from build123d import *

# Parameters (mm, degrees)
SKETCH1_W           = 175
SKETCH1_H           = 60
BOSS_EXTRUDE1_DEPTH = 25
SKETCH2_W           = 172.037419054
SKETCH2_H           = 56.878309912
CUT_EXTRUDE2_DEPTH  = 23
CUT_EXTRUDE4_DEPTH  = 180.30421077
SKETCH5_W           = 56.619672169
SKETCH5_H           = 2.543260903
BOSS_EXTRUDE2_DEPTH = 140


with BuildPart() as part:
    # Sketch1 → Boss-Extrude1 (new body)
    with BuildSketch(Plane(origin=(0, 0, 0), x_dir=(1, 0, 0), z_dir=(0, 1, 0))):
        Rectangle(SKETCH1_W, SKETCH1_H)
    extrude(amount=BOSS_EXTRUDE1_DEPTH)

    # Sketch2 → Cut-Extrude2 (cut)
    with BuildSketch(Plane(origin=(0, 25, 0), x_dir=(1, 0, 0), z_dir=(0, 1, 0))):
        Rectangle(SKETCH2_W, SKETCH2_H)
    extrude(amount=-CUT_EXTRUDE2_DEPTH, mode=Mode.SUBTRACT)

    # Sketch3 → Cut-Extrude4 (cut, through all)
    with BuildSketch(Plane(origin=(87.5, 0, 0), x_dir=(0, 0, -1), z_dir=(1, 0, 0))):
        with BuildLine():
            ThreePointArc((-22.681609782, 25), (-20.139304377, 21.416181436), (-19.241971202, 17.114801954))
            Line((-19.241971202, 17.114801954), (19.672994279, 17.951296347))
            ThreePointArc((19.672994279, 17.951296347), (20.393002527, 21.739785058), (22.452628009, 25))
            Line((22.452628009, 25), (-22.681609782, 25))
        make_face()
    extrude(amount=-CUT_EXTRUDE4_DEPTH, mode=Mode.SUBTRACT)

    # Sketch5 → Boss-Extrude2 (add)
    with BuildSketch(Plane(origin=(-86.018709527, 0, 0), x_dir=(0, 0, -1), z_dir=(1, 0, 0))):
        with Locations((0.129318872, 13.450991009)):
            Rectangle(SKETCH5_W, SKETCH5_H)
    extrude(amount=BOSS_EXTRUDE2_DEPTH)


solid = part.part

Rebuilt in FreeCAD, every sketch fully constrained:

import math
import FreeCAD as App
import Part
import Sketcher

V = App.Vector
Q = App.Units.Quantity


def add_polygon(sketch, points):
    """Adds a closed chain of lines whose ends are joined by coincident constraints."""
    first, n = sketch.GeometryCount, len(points)
    for a, b in zip(points, points[1:] + points[:1]):
        sketch.addGeometry(Part.LineSegment(App.Vector(*a, 0), App.Vector(*b, 0)), False)
    for i in range(n):
        sketch.addConstraint(Sketcher.Constraint("Coincident", first + i, 2, first + (i + 1) % n, 1))

doc = App.newDocument("Part")
body = doc.addObject("PartDesign::Body", "Body")

sketch1 = doc.addObject("Sketcher::SketchObject", "Sketch")
body.addObject(sketch1)
sketch1.AttachmentSupport = (doc.XZ_Plane, [""])
sketch1.MapMode = "FlatFace"
add_polygon(sketch1, [(-88, -30), (-88, 30), (88, 30), (88, -30)])
sketch1.addConstraint(Sketcher.Constraint("Vertical", 0))
sketch1.addConstraint(Sketcher.Constraint("Horizontal", 1))
sketch1.addConstraint(Sketcher.Constraint("Vertical", 2))
sketch1.addConstraint(Sketcher.Constraint("Horizontal", 3))
sketch1.addConstraint(Sketcher.Constraint("Symmetric", 0, 2, 2, 2, -1, 1))
sketch1.addConstraint(Sketcher.Constraint("DistanceX", 1, 1, 1, 2, Q("175 mm")))
sketch1.addConstraint(Sketcher.Constraint("DistanceY", 0, 1, 0, 2, Q("60 mm")))
pad1 = doc.addObject("PartDesign::Pad", "Pad")
body.addObject(pad1)
pad1.Profile = sketch1
pad1.Length = 25
pad1.Reversed = True

sketch2 = doc.addObject("Sketcher::SketchObject", "Sketch001")
body.addObject(sketch2)
sketch2.AttachmentSupport = (doc.XZ_Plane, [""])
sketch2.MapMode = "FlatFace"
sketch2.AttachmentOffset = App.Placement(V(0, 0, -25), App.Rotation())
add_polygon(sketch2, [(-86, -28), (-86, 28), (86, 28), (86, -28)])
sketch2.addConstraint(Sketcher.Constraint("Vertical", 0))
sketch2.addConstraint(Sketcher.Constraint("Horizontal", 1))
sketch2.addConstraint(Sketcher.Constraint("Vertical", 2))
sketch2.addConstraint(Sketcher.Constraint("Horizontal", 3))
sketch2.addConstraint(Sketcher.Constraint("Symmetric", 0, 2, 2, 2, -1, 1))
sketch2.addConstraint(Sketcher.Constraint("DistanceX", 1, 1, 1, 2, Q("172.037419 mm")))
sketch2.addConstraint(Sketcher.Constraint("DistanceY", 0, 1, 0, 2, Q("56.87831 mm")))
pocket1 = doc.addObject("PartDesign::Pocket", "Pocket")
body.addObject(pocket1)
pocket1.Profile = sketch2
pocket1.Length = 23
pocket1.Reversed = True

sketch3 = doc.addObject("Sketcher::SketchObject", "Sketch002")
body.addObject(sketch3)
sketch3.AttachmentSupport = (doc.YZ_Plane, [""])
sketch3.MapMode = "FlatFace"
sketch3.AttachmentOffset = App.Placement(V(0, 0, 87.5), App.Rotation())
sketch3.addGeometry(Part.ArcOfCircle(Part.Circle(V(17, 30, 0), V(0, 0, 1), 11), math.radians(-90), math.radians(-43)), False)
sketch3.addGeometry(Part.LineSegment(V(17, 19, 0), V(18, -20, 0)), False)
sketch3.addGeometry(Part.ArcOfCircle(Part.Circle(V(18, -30, 0), V(0, 0, 1), 10), math.radians(47), math.radians(90)), False)
sketch3.addGeometry(Part.LineSegment(V(25, -22, 0), V(25, 23, 0)), False)
sketch3.addConstraint(Sketcher.Constraint("Coincident", 0, 1, 1, 1))
sketch3.addConstraint(Sketcher.Constraint("Coincident", 1, 2, 2, 2))
sketch3.addConstraint(Sketcher.Constraint("Coincident", 2, 1, 3, 1))
sketch3.addConstraint(Sketcher.Constraint("Coincident", 3, 2, 0, 2))
sketch3.addConstraint(Sketcher.Constraint("Vertical", 3))
sketch3.addConstraint(Sketcher.Constraint("Vertical", 2, 3, 1, 2))
sketch3.addConstraint(Sketcher.Constraint("DistanceY", -1, 1, 0, 3, Q("30 mm")))
sketch3.addConstraint(Sketcher.Constraint("DistanceY", 2, 3, -1, 1, Q("30 mm")))
sketch3.addConstraint(Sketcher.Constraint("DistanceX", -1, 1, 2, 1, Q("25 mm")))
sketch3.addConstraint(Sketcher.Constraint("Radius", 0, Q("10.758029 mm")))
sketch3.addConstraint(Sketcher.Constraint("Radius", 2, Q("10.327006 mm")))
sketch3.addConstraint(Sketcher.Constraint("DistanceX", -1, 1, 0, 3, Q("17.114802 mm")))
sketch3.addConstraint(Sketcher.Constraint("DistanceX", -1, 1, 0, 1, Q("17.114802 mm")))
sketch3.addConstraint(Sketcher.Constraint("DistanceY", 2, 1, 0, 1, Q("41.694599 mm")))
pocket2 = doc.addObject("PartDesign::Pocket", "Pocket001")
body.addObject(pocket2)
pocket2.Profile = sketch3
pocket2.Type = "ThroughAll"

sketch4 = doc.addObject("Sketcher::SketchObject", "Sketch003")
body.addObject(sketch4)
sketch4.AttachmentSupport = (doc.YZ_Plane, [""])
sketch4.MapMode = "FlatFace"
sketch4.AttachmentOffset = App.Placement(V(0, 0, -86.01871), App.Rotation())
add_polygon(sketch4, [(14.7, 28.2), (12.2, 28.2), (12.2, -28.4), (14.7, -28.4)])
sketch4.addConstraint(Sketcher.Constraint("Horizontal", 0))
sketch4.addConstraint(Sketcher.Constraint("Vertical", 1))
sketch4.addConstraint(Sketcher.Constraint("Horizontal", 2))
sketch4.addConstraint(Sketcher.Constraint("Vertical", 3))
sketch4.addConstraint(Sketcher.Constraint("DistanceX", 0, 2, 0, 1, Q("2.543261 mm")))
sketch4.addConstraint(Sketcher.Constraint("DistanceY", 1, 2, 1, 1, Q("56.619672 mm")))
sketch4.addConstraint(Sketcher.Constraint("DistanceX", -1, 1, 0, 2, Q("12.179361 mm")))
sketch4.addConstraint(Sketcher.Constraint("DistanceY", -1, 1, 0, 2, Q("28.180517 mm")))
pad2 = doc.addObject("PartDesign::Pad", "Pad001")
body.addObject(pad2)
pad2.Profile = sketch4
pad2.Length = 140

doc.recompute()
